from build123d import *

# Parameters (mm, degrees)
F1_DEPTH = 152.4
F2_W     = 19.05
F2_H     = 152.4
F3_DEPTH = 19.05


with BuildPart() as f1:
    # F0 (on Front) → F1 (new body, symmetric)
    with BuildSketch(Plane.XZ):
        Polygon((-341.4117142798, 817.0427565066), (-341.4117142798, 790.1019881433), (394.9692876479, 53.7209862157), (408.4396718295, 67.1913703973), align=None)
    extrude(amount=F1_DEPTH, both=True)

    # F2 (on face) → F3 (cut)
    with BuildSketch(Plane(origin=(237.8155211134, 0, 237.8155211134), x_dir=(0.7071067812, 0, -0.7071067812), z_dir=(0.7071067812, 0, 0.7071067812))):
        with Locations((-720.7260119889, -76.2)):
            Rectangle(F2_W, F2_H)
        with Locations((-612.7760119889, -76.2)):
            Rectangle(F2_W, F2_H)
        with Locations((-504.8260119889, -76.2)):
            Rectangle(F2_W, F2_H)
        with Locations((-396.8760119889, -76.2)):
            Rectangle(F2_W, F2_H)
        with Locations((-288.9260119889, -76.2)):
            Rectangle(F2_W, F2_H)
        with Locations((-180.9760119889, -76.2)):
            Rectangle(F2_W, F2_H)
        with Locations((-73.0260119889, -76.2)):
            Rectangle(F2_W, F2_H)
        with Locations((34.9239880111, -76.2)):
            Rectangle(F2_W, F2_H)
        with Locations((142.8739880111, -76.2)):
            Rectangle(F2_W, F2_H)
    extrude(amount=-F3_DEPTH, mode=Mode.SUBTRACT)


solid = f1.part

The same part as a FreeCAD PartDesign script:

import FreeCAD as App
import Part
import Sketcher
Q = App.Units.Quantity

doc = App.newDocument("Part")
params = doc.addObject("Spreadsheet::Sheet", "Params")
for row, (alias, value) in enumerate([
    ("sketch1_length", "41 in"),
    ("sketch1_length2", "0.75 in"),
    ("pad1_length", "12 in"),
    ("sketch2_height", "6 in"),
    ("sketch2_width", "0.75 in"),
    ("pocket1_length", "0.75 in"),
], start=1):
    params.set(f"A{row}", alias)
    params.set(f"B{row}", "=" + value)
    params.setAlias(f"B{row}", alias)

body = doc.addObject("PartDesign::Body", "Body")

sketch1 = body.newObject("Sketcher::SketchObject", "Sketch")
sketch1.AttachmentSupport = (doc.getObject("XZ_Plane"), [""])
sketch1.MapMode = "FlatFace"
sketch1.addGeometry([
    Part.LineSegment(App.Vector(-341, 817, 0), App.Vector(-341, 790, 0)),
    Part.LineSegment(App.Vector(-341, 790, 0), App.Vector(395, 54, 0)),
    Part.LineSegment(App.Vector(395, 54, 0), App.Vector(408, 67, 0)),
    Part.LineSegment(App.Vector(408, 67, 0), App.Vector(-341, 817, 0)),
], False)
sketch1.addConstraint([
    Sketcher.Constraint("Coincident", 0, 2, 1, 1),
    Sketcher.Constraint("Coincident", 1, 2, 2, 1),
    Sketcher.Constraint("Coincident", 2, 2, 3, 1),
    Sketcher.Constraint("Coincident", 3, 2, 0, 1),
    Sketcher.Constraint("Vertical", 0),
    Sketcher.Constraint("Perpendicular", 1, 2),
    Sketcher.Constraint("Perpendicular", 2, 3),
    Sketcher.Constraint("Distance", 1, Q("41 in")),
    Sketcher.Constraint("Angle", 1, Q("-45 deg")),
    Sketcher.Constraint("Distance", 2, Q("0.75 in")),
    Sketcher.Constraint("DistanceY", -1, 1, 0, 2, Q("790.101988 mm")),
    Sketcher.Constraint("DistanceX", -1, 1, 2, 2, Q("408.439672 mm")),
])
sketch1.setExpression("Constraints[7]", "Params.sketch1_length")
sketch1.setExpression("Constraints[9]", "Params.sketch1_length2")
pad1 = body.newObject("PartDesign::Pad", "Pad")
pad1.Profile = sketch1
pad1.setExpression("Length", "Params.pad1_length")
pad1.Midplane = True

sketch2 = body.newObject("Sketcher::SketchObject", "Sketch001")
sketch2.Placement = App.Placement(App.Vector(237.815521, 0, 237.815521), App.Rotation(App.Vector(0.707106781, 0, -0.707106781), App.Vector(0, 0.999999999, 0), App.Vector(0.707106781, 0, 0.707106781), "ZXY"))
sketch2.addGeometry([
    Part.LineSegment(App.Vector(-730, 0, 0), App.Vector(-730, -152, 0)),
    Part.LineSegment(App.Vector(-730, -152, 0), App.Vector(-711, -152, 0)),
    Part.LineSegment(App.Vector(-711, -152, 0), App.Vector(-711, 0, 0)),
    Part.LineSegment(App.Vector(-711, 0, 0), App.Vector(-730, 0, 0)),
    Part.LineSegment(App.Vector(-622, 0, 0), App.Vector(-622, -152, 0)),
    Part.LineSegment(App.Vector(-622, -152, 0), App.Vector(-603, -152, 0)),
    Part.LineSegment(App.Vector(-603, -152, 0), App.Vector(-603, 0, 0)),
    Part.LineSegment(App.Vector(-603, 0, 0), App.Vector(-622, 0, 0)),
    Part.LineSegment(App.Vector(-514, 0, 0), App.Vector(-514, -152, 0)),
    Part.LineSegment(App.Vector(-514, -152, 0), App.Vector(-495, -152, 0)),
    Part.LineSegment(App.Vector(-495, -152, 0), App.Vector(-495, 0, 0)),
    Part.LineSegment(App.Vector(-495, 0, 0), App.Vector(-514, 0, 0)),
    Part.LineSegment(App.Vector(-406, 0, 0), App.Vector(-406, -152, 0)),
    Part.LineSegment(App.Vector(-406, -152, 0), App.Vector(-387, -152, 0)),
    Part.LineSegment(App.Vector(-387, -152, 0), App.Vector(-387, 0, 0)),
    Part.LineSegment(App.Vector(-387, 0, 0), App.Vector(-406, 0, 0)),
    Part.LineSegment(App.Vector(-298, 0, 0), App.Vector(-298, -152, 0)),
    Part.LineSegment(App.Vector(-298, -152, 0), App.Vector(-279, -152, 0)),
    Part.LineSegment(App.Vector(-279, -152, 0), App.Vector(-279, 0, 0)),
    Part.LineSegment(App.Vector(-279, 0, 0), App.Vector(-298, 0, 0)),
    Part.LineSegment(App.Vector(-191, 0, 0), App.Vector(-191, -152, 0)),
    Part.LineSegment(App.Vector(-191, -152, 0), App.Vector(-171, -152, 0)),
    Part.LineSegment(App.Vector(-171, -152, 0), App.Vector(-171, 0, 0)),
    Part.LineSegment(App.Vector(-171, 0, 0), App.Vector(-191, 0, 0)),
    Part.LineSegment(App.Vector(-83, 0, 0), App.Vector(-83, -152, 0)),
    Part.LineSegment(App.Vector(-83, -152, 0), App.Vector(-64, -152, 0)),
    Part.LineSegment(App.Vector(-64, -152, 0), App.Vector(-64, 0, 0)),
    Part.LineSegment(App.Vector(-64, 0, 0), App.Vector(-83, 0, 0)),
    Part.LineSegment(App.Vector(25, 0, 0), App.Vector(25, -152, 0)),
    Part.LineSegment(App.Vector(25, -152, 0), App.Vector(44, -152, 0)),
    Part.LineSegment(App.Vector(44, -152, 0), App.Vector(44, 0, 0)),
    Part.LineSegment(App.Vector(44, 0, 0), App.Vector(25, 0, 0)),
    Part.LineSegment(App.Vector(133, 0, 0), App.Vector(133, -152, 0)),
    Part.LineSegment(App.Vector(133, -152, 0), App.Vector(152, -152, 0)),
    Part.LineSegment(App.Vector(152, -152, 0), App.Vector(152, 0, 0)),
    Part.LineSegment(App.Vector(152, 0, 0), App.Vector(133, 0, 0)),
], False)
sketch2.addConstraint([
    Sketcher.Constraint("Coincident", 0, 2, 1, 1),
    Sketcher.Constraint("Coincident", 1, 2, 2, 1),
    Sketcher.Constraint("Coincident", 2, 2, 3, 1),
    Sketcher.Constraint("Coincident", 3, 2, 0, 1),
    Sketcher.Constraint("Coincident", 4, 2, 5, 1),
    Sketcher.Constraint("Coincident", 5, 2, 6, 1),
    Sketcher.Constraint("Coincident", 6, 2, 7, 1),
    Sketcher.Constraint("Coincident", 7, 2, 4, 1),
    Sketcher.Constraint("Coincident", 8, 2, 9, 1),
    Sketcher.Constraint("Coincident", 9, 2, 10, 1),
    Sketcher.Constraint("Coincident", 10, 2, 11, 1),
    Sketcher.Constraint("Coincident", 11, 2, 8, 1),
    Sketcher.Constraint("Coincident", 12, 2, 13, 1),
    Sketcher.Constraint("Coincident", 13, 2, 14, 1),
    Sketcher.Constraint("Coincident", 14, 2, 15, 1),
    Sketcher.Constraint("Coincident", 15, 2, 12, 1),
    Sketcher.Constraint("Coincident", 16, 2, 17, 1),
    Sketcher.Constraint("Coincident", 17, 2, 18, 1),
    Sketcher.Constraint("Coincident", 18, 2, 19, 1),
    Sketcher.Constraint("Coincident", 19, 2, 16, 1),
    Sketcher.Constraint("Coincident", 20, 2, 21, 1),
    Sketcher.Constraint("Coincident", 21, 2, 22, 1),
    Sketcher.Constraint("Coincident", 22, 2, 23, 1),
    Sketcher.Constraint("Coincident", 23, 2, 20, 1),
    Sketcher.Constraint("Coincident", 24, 2, 25, 1),
    Sketcher.Constraint("Coincident", 25, 2, 26, 1),
    Sketcher.Constraint("Coincident", 26, 2, 27, 1),
    Sketcher.Constraint("Coincident", 27, 2, 24, 1),
    Sketcher.Constraint("Coincident", 28, 2, 29, 1),
    Sketcher.Constraint("Coincident", 29, 2, 30, 1),
    Sketcher.Constraint("Coincident", 30, 2, 31, 1),
    Sketcher.Constraint("Coincident", 31, 2, 28, 1),
    Sketcher.Constraint("Coincident", 32, 2, 33, 1),
    Sketcher.Constraint("Coincident", 33, 2, 34, 1),
    Sketcher.Constraint("Coincident", 34, 2, 35, 1),
    Sketcher.Constraint("Coincident", 35, 2, 32, 1),
    Sketcher.Constraint("Vertical", 0),
    Sketcher.Constraint("Horizontal", 1),
    Sketcher.Constraint("Vertical", 2),
    Sketcher.Constraint("Horizontal", 3),
    Sketcher.Constraint("Vertical", 4),
    Sketcher.Constraint("Horizontal", 5),
    Sketcher.Constraint("Vertical", 6),
    Sketcher.Constraint("Horizontal", 7),
    Sketcher.Constraint("Vertical", 8),
    Sketcher.Constraint("Horizontal", 9),
    Sketcher.Constraint("Vertical", 10),
    Sketcher.Constraint("Horizontal", 11),
    Sketcher.Constraint("Vertical", 12),
    Sketcher.Constraint("Horizontal", 13),
    Sketcher.Constraint("Vertical", 14),
    Sketcher.Constraint("Horizontal", 15),
    Sketcher.Constraint("Vertical", 16),
    Sketcher.Constraint("Horizontal", 17),
    Sketcher.Constraint("Vertical", 18),
    Sketcher.Constraint("Horizontal", 19),
    Sketcher.Constraint("Vertical", 20),
    Sketcher.Constraint("Horizontal", 21),
    Sketcher.Constraint("Vertical", 22),
    Sketcher.Constraint("Horizontal", 23),
    Sketcher.Constraint("Vertical", 24),
    Sketcher.Constraint("Horizontal", 25),
    Sketcher.Constraint("Vertical", 26),
    Sketcher.Constraint("Horizontal", 27),
    Sketcher.Constraint("Vertical", 28),
    Sketcher.Constraint("Horizontal", 29),
    Sketcher.Constraint("Vertical", 30),
    Sketcher.Constraint("Horizontal", 31),
    Sketcher.Constraint("Vertical", 32),
    Sketcher.Constraint("Horizontal", 33),
    Sketcher.Constraint("Vertical", 34),
    Sketcher.Constraint("Horizontal", 35),
    Sketcher.Constraint("PointOnObject", 2, 2, -1),
    Sketcher.Constraint("PointOnObject", 6, 2, -1),
    Sketcher.Constraint("PointOnObject", 10, 2, -1),
    Sketcher.Constraint("PointOnObject", 14, 2, -1),
    Sketcher.Constraint("PointOnObject", 18, 2, -1),
    Sketcher.Constraint("PointOnObject", 22, 2, -1),
    Sketcher.Constraint("PointOnObject", 26, 2, -1),
    Sketcher.Constraint("PointOnObject", 30, 2, -1),
    Sketcher.Constraint("PointOnObject", 34, 2, -1),
    Sketcher.Constraint("Horizontal", 1, 2, 4, 2),
    Sketcher.Constraint("Horizontal", 5, 2, 8, 2),
    Sketcher.Constraint("Horizontal", 9, 2, 12, 2),
    Sketcher.Constraint("Horizontal", 13, 2, 16, 2),
    Sketcher.Constraint("Horizontal", 17, 2, 20, 2),
    Sketcher.Constraint("Horizontal", 21, 2, 24, 2),
    Sketcher.Constraint("Horizontal", 25, 2, 28, 2),
    Sketcher.Constraint("Horizontal", 29, 2, 32, 2),
    Sketcher.Constraint("Equal", 3, 5),
    Sketcher.Constraint("Equal", 7, 9),
    Sketcher.Constraint("Equal", 11, 13),
    Sketcher.Constraint("Equal", 15, 17),
    Sketcher.Constraint("Equal", 19, 21),
    Sketcher.Constraint("Equal", 23, 25),
    Sketcher.Constraint("Equal", 27, 29),
    Sketcher.Constraint("Equal", 31, 33),
    Sketcher.Constraint("DistanceY", 0, 2, 0, 1, Q("6 in")),
    Sketcher.Constraint("DistanceX", 0, 2, 5, 2, Q("5 in")),
    Sketcher.Constraint("DistanceX", 4, 2, 9, 2, Q("5 in")),
    Sketcher.Constraint("DistanceX", 8, 2, 13, 2, Q("5 in")),
    Sketcher.Constraint("DistanceX", 12, 2, 17, 2, Q("5 in")),
    Sketcher.Constraint("DistanceX", 16, 2, 21, 2, Q("5 in")),
    Sketcher.Constraint("DistanceX", 20, 2, 25, 2, Q("5 in")),
    Sketcher.Constraint("DistanceX", 24, 2, 29, 2, Q("5 in")),
    Sketcher.Constraint("DistanceX", 28, 2, 33, 2, Q("5 in")),
    Sketcher.Constraint("DistanceX", 1, 1, 1, 2, Q("0.75 in")),
    Sketcher.Constraint("DistanceX", 0, 2, -1, 1, Q("730.251012 mm")),
])
sketch2.setExpression("Constraints[97]", "Params.sketch2_height")
sketch2.setExpression("Constraints[106]", "Params.sketch2_width")
pocket1 = body.newObject("PartDesign::Pocket", "Pocket")
pocket1.Profile = sketch2
pocket1.setExpression("Length", "Params.pocket1_length")

doc.recompute()
